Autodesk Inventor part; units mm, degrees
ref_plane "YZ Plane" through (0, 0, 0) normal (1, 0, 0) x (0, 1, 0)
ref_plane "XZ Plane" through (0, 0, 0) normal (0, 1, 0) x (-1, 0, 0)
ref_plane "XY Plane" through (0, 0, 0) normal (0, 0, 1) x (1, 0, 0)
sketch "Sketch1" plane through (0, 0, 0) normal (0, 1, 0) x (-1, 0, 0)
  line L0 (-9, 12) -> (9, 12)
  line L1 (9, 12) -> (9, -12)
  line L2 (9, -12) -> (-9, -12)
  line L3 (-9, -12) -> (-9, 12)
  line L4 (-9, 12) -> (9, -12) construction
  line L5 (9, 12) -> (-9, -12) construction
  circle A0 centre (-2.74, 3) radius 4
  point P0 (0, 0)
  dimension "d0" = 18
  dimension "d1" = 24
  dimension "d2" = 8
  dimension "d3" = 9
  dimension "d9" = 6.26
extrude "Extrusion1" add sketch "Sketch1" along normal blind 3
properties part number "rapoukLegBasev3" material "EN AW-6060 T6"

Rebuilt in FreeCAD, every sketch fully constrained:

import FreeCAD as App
import Part
import Sketcher
from FreeCAD import Vector


def add_polygon(sketch, points):
    """Adds a closed chain of lines whose ends are joined by coincident constraints."""
    first, n = sketch.GeometryCount, len(points)
    for a, b in zip(points, points[1:] + points[:1]):
        sketch.addGeometry(Part.LineSegment(App.Vector(*a, 0), App.Vector(*b, 0)), False)
    for i in range(n):
        sketch.addConstraint(Sketcher.Constraint("Coincident", first + i, 2, first + (i + 1) % n, 1))

doc = App.newDocument("Part")
body = doc.addObject("PartDesign::Body", "Body")

sketch1 = doc.addObject("Sketcher::SketchObject", "Sketch")
body.addObject(sketch1)
sketch1.AttachmentSupport = (doc.XZ_Plane, [""])
sketch1.MapMode = "FlatFace"
add_polygon(sketch1, [(-9, 12), (9, 12), (9, -12), (-9, -12)])
sketch1.addGeometry(Part.Circle(Vector(2.7, 3, 0), Vector(0, 0, 1), 4), False)
sketch1.addConstraint(Sketcher.Constraint("Horizontal", 0))
sketch1.addConstraint(Sketcher.Constraint("Vertical", 1))
sketch1.addConstraint(Sketcher.Constraint("Horizontal", 2))
sketch1.addConstraint(Sketcher.Constraint("Vertical", 3))
sketch1.addConstraint(Sketcher.Constraint("Symmetric", 0, 2, 2, 2, -1, 1))
sketch1.addConstraint(Sketcher.Constraint("Diameter", 4, 8.0))
sketch1.addConstraint(Sketcher.Constraint("DistanceX", 0, 1, 0, 2, 18.0))
sketch1.addConstraint(Sketcher.Constraint("DistanceY", 1, 2, 1, 1, 24.0))
sketch1.addConstraint(Sketcher.Constraint("DistanceY", 4, 3, 0, 2, 9.0))
sketch1.addConstraint(Sketcher.Constraint("DistanceX", 4, 3, 0, 2, 6.26))
pad1 = doc.addObject("PartDesign::Pad", "Pad")
body.addObject(pad1)
pad1.Profile = sketch1
pad1.Length = 3
pad1.Reversed = True

doc.recompute()
